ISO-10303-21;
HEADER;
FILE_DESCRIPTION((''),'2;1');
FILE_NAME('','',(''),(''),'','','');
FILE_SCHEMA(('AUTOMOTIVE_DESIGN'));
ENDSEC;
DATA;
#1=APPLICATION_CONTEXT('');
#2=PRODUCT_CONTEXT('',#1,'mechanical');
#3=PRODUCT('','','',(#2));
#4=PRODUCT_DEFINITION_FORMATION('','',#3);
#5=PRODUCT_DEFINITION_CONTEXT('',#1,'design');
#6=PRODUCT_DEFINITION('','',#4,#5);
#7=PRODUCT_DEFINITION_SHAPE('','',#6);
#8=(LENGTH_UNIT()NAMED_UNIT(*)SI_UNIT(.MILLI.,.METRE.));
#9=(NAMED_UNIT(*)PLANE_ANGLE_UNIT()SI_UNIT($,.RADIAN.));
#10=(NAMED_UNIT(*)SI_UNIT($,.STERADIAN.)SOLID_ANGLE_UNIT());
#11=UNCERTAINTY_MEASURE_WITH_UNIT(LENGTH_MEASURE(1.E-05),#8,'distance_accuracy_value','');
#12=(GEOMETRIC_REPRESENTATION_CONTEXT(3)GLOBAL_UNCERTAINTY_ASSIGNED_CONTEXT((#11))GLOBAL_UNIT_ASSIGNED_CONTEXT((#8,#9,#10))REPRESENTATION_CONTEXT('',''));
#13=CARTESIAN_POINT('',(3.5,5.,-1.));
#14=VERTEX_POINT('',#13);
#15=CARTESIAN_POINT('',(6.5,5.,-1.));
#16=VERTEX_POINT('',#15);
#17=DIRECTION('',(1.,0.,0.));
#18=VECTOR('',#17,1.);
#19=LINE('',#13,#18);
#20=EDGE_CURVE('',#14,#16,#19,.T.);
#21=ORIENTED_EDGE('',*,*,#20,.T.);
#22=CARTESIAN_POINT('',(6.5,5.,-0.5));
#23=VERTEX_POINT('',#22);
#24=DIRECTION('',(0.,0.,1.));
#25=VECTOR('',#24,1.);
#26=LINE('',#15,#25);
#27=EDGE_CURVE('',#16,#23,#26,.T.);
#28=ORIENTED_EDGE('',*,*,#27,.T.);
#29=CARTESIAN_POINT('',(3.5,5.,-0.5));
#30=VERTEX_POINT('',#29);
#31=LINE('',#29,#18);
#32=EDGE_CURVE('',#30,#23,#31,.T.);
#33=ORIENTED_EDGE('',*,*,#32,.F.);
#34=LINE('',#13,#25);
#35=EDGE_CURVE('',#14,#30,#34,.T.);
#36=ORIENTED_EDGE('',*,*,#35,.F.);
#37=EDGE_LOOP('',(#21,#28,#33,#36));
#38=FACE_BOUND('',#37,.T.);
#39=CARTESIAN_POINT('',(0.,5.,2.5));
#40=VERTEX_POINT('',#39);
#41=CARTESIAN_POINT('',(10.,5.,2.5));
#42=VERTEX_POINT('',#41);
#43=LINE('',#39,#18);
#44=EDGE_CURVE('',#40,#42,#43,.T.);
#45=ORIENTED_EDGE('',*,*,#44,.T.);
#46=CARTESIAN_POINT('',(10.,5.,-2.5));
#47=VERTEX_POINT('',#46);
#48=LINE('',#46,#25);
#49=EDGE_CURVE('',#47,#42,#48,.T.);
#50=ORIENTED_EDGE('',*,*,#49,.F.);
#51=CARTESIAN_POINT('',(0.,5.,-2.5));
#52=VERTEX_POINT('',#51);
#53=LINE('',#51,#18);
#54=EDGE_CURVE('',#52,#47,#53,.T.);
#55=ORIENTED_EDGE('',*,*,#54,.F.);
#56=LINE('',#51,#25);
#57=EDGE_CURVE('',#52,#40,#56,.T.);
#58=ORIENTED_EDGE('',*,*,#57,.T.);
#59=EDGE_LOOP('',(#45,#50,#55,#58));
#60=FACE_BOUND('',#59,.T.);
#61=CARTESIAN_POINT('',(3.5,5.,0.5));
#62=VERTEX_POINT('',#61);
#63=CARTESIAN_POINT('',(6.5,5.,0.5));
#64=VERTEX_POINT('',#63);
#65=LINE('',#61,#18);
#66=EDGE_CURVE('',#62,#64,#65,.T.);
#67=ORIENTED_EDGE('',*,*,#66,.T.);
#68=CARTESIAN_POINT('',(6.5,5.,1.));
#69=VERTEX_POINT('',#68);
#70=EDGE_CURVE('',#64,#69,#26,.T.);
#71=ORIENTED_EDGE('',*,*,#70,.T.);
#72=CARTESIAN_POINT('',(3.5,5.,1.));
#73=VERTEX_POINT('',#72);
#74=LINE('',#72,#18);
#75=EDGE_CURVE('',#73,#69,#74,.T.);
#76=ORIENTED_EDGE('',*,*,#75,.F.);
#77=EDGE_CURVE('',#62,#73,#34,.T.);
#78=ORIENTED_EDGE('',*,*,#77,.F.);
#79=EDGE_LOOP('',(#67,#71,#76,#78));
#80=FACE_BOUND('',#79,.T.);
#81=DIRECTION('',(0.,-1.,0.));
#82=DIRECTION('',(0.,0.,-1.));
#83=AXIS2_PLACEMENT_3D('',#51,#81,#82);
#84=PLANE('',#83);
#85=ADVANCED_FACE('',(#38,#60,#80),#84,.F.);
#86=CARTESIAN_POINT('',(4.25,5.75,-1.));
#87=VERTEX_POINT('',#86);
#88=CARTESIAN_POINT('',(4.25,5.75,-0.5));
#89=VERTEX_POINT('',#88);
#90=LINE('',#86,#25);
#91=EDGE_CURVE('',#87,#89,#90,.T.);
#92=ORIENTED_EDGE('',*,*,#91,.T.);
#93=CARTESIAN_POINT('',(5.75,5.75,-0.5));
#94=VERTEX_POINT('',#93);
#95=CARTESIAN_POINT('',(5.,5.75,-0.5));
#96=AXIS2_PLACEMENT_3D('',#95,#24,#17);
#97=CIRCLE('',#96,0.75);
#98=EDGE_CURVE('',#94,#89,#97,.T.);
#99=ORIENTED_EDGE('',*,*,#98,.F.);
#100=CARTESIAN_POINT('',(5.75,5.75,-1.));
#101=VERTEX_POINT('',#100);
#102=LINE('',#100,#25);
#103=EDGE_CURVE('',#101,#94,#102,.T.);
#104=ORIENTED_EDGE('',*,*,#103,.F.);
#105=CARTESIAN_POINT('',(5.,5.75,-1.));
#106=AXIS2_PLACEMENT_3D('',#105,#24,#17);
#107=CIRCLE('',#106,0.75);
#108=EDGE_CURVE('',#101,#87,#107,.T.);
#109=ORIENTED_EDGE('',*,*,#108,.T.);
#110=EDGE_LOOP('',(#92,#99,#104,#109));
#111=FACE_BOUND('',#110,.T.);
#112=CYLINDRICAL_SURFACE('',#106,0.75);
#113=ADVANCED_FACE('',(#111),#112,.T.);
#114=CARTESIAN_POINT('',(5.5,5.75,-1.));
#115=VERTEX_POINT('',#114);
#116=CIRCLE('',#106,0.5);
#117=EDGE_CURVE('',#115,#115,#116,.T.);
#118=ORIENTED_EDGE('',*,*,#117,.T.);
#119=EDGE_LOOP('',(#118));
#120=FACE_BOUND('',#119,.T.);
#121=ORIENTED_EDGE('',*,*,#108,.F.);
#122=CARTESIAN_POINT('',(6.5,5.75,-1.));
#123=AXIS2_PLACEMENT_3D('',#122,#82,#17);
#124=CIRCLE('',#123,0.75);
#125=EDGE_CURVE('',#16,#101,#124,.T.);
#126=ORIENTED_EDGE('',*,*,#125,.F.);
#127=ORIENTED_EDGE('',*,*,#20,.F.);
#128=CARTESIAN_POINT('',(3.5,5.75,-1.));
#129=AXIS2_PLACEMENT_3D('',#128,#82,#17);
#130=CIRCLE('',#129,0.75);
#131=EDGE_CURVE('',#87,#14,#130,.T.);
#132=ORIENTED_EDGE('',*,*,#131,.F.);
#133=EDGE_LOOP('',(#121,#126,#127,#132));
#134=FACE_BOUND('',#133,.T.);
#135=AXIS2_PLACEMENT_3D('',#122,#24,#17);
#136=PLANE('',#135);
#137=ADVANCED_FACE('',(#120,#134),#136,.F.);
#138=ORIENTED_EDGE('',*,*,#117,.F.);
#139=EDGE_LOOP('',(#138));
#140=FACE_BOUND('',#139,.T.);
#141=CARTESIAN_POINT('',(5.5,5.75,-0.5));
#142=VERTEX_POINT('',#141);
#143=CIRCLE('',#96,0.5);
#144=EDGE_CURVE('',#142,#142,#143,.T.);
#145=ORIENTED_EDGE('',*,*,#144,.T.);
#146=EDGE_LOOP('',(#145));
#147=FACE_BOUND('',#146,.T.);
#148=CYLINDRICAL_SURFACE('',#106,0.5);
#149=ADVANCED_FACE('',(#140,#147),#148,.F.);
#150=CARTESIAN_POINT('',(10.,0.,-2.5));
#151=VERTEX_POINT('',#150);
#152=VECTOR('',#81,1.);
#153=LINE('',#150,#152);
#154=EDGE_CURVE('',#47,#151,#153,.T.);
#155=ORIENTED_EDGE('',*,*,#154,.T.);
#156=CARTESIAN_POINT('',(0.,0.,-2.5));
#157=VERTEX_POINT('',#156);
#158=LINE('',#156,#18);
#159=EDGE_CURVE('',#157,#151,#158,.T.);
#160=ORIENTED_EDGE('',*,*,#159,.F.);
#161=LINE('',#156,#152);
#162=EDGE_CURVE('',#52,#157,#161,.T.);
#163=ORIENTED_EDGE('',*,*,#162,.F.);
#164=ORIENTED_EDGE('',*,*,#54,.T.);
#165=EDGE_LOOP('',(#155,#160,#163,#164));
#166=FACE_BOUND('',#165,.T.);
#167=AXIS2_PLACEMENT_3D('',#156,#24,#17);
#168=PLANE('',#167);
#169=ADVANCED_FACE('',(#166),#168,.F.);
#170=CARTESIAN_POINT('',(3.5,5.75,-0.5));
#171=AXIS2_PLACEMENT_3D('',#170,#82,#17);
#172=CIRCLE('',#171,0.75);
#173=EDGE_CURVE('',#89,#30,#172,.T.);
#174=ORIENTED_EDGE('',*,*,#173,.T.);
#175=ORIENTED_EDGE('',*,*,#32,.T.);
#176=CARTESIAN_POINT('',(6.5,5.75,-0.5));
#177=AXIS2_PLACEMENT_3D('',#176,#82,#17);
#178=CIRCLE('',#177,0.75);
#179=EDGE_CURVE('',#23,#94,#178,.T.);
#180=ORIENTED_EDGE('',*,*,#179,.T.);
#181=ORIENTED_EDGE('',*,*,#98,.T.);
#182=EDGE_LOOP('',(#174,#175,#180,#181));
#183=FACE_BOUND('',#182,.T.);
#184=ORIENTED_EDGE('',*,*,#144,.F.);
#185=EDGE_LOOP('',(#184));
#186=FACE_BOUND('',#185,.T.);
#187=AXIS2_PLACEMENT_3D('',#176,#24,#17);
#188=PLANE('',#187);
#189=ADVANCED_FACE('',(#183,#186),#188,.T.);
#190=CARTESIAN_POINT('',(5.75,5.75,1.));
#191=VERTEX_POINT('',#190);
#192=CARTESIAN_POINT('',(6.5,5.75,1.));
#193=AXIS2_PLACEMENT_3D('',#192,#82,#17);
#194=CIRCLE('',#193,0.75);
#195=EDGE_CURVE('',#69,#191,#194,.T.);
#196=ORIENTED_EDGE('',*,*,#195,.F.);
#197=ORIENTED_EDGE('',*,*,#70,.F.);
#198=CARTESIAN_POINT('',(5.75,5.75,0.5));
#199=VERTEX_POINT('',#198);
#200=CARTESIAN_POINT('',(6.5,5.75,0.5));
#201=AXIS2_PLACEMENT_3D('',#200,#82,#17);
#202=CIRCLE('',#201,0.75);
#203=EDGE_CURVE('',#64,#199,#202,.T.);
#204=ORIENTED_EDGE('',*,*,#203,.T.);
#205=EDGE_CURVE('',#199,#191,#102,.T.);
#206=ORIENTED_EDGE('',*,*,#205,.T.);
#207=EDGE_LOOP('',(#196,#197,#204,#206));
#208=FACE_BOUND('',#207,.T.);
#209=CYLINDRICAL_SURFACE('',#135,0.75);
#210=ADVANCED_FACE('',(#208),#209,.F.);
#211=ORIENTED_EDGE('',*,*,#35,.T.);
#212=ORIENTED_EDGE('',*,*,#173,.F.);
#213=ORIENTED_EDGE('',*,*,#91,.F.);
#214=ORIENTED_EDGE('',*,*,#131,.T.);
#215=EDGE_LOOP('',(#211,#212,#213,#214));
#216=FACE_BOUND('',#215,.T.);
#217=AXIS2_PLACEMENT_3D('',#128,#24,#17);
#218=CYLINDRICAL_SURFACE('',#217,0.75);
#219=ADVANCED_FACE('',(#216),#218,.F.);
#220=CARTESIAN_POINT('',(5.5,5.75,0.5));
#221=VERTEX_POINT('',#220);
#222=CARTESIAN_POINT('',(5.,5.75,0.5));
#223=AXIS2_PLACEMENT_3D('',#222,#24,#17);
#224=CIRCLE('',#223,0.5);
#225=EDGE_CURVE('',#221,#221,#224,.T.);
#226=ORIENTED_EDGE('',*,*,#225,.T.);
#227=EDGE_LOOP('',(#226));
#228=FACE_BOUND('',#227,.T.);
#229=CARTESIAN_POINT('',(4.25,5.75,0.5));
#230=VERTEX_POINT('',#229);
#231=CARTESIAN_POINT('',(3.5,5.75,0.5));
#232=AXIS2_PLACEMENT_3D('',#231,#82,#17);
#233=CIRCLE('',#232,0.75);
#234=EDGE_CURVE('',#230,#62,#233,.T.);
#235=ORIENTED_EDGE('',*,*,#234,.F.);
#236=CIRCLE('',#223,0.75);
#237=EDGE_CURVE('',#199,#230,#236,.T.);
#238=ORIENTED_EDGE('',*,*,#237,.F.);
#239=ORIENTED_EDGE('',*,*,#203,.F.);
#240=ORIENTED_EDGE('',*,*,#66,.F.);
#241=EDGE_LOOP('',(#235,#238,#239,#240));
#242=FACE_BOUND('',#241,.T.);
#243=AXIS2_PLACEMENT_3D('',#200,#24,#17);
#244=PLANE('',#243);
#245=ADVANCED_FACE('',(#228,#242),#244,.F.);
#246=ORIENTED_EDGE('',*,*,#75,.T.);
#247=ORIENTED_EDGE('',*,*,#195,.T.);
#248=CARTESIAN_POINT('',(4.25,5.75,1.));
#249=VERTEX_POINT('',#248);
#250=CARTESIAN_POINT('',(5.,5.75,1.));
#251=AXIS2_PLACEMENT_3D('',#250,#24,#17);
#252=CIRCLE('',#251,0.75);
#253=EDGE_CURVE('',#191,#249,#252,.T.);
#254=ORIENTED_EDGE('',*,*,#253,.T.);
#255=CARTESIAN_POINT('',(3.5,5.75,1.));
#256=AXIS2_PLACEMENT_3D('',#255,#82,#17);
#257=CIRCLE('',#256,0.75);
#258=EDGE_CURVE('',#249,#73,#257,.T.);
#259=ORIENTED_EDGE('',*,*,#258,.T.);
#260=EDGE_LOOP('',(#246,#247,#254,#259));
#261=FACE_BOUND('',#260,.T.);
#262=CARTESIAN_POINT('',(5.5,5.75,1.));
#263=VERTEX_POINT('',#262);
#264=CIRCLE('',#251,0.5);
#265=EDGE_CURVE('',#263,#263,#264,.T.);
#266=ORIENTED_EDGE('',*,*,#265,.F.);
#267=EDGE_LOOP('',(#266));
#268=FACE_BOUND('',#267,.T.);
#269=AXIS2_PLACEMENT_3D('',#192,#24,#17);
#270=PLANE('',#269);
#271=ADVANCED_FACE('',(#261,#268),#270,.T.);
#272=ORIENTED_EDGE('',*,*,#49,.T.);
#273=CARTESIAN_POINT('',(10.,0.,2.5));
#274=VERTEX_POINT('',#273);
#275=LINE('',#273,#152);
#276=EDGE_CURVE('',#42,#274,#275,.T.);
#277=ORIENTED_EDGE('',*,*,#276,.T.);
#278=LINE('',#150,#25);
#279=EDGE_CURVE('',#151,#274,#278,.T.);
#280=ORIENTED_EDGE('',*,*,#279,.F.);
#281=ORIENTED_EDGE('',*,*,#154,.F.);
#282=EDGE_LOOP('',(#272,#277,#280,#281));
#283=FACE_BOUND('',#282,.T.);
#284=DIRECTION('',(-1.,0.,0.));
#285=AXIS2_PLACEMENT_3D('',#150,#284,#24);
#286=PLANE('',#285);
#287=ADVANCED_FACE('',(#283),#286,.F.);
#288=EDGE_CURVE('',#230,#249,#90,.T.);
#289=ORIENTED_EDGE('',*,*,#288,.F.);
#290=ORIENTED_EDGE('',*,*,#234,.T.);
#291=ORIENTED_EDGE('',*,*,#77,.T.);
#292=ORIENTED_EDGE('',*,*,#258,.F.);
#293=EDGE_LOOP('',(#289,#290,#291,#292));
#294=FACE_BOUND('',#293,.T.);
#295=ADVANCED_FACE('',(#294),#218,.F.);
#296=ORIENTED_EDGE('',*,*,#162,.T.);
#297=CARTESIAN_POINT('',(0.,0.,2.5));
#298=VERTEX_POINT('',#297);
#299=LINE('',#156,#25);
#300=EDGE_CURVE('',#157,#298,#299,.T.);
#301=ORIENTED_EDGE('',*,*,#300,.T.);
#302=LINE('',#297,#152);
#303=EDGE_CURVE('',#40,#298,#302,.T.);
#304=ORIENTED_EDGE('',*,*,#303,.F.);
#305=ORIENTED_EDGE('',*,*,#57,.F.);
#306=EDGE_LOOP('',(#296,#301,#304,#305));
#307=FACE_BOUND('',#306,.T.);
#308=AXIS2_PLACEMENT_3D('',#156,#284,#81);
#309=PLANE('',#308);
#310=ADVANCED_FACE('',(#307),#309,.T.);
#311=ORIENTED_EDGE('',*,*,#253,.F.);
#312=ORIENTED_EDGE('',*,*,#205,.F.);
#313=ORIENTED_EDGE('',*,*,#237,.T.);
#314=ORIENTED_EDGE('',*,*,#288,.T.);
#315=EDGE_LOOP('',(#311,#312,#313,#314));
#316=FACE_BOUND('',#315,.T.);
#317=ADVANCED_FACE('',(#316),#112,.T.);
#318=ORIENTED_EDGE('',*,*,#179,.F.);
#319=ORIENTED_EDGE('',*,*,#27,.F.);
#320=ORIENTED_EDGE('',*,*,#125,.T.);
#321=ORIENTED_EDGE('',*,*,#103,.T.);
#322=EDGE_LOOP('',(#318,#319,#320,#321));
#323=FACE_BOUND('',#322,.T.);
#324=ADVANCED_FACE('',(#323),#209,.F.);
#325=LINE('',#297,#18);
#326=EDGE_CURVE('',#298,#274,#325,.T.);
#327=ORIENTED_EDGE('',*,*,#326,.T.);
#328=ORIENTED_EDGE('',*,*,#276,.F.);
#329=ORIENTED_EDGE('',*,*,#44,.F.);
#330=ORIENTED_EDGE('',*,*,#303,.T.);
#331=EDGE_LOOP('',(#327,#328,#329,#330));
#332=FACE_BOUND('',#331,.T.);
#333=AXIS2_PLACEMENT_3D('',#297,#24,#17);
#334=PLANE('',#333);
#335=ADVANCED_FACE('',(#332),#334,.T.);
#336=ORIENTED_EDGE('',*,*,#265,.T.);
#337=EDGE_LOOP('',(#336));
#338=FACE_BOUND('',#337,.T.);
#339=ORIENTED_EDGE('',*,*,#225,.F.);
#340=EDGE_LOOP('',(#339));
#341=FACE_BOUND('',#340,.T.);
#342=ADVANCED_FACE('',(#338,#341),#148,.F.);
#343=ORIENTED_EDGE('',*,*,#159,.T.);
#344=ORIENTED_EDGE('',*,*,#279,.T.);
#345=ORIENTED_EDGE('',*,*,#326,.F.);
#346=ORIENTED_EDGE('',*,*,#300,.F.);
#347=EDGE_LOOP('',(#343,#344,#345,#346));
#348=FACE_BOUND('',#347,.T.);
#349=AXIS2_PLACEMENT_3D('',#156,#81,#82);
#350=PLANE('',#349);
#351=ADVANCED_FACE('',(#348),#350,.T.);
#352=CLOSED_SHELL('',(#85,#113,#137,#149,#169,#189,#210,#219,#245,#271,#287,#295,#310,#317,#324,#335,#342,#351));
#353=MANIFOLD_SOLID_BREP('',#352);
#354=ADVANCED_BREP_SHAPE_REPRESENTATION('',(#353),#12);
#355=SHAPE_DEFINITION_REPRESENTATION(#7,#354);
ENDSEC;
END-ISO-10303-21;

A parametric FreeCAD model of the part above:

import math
import FreeCAD as App
import Part
import Sketcher


def add_polygon(sketch, points):
    """Adds a closed chain of lines whose ends are joined by coincident constraints."""
    first, n = sketch.GeometryCount, len(points)
    for a, b in zip(points, points[1:] + points[:1]):
        sketch.addGeometry(Part.LineSegment(App.Vector(*a, 0), App.Vector(*b, 0)), False)
    for i in range(n):
        sketch.addConstraint(Sketcher.Constraint("Coincident", first + i, 2, first + (i + 1) % n, 1))

doc = App.newDocument("Part")
body = doc.addObject("PartDesign::Body", "Body")

sketch1 = body.newObject("Sketcher::SketchObject", "Sketch")
sketch1.AttachmentSupport = (doc.getObject("XY_Plane"), [""])
sketch1.MapMode = "FlatFace"
add_polygon(sketch1, [(0, 5), (0, 0), (10, 0), (10, 5)])
sketch1.addConstraint([
    Sketcher.Constraint("Vertical", 0),
    Sketcher.Constraint("Horizontal", 1),
    Sketcher.Constraint("Vertical", 2),
    Sketcher.Constraint("Horizontal", 3),
    Sketcher.Constraint("Coincident", 0, 2, -1, 1),
    Sketcher.Constraint("DistanceX", 1, 1, 1, 2, 10.0),
    Sketcher.Constraint("DistanceY", 0, 2, 0, 1, 5.0),
])
pad1 = body.newObject("PartDesign::Pad", "Pad")
pad1.Profile = sketch1
pad1.Type = "TwoLengths"
pad1.Length = 2.5
pad1.Length2 = 2.5

sketch2 = body.newObject("Sketcher::SketchObject", "Sketch001")
sketch2.AttachmentSupport = (doc.getObject("XY_Plane"), [""])
sketch2.MapMode = "FlatFace"
sketch2.addGeometry([
    Part.LineSegment(App.Vector(3.5, 5, 0), App.Vector(6.5, 5, 0)),
    Part.ArcOfCircle(Part.Circle(App.Vector(6.5, 5.8, 0), App.Vector(0, 0, 1), 0.8), math.radians(180), math.radians(270)),
    Part.ArcOfCircle(Part.Circle(App.Vector(5, 5.8, 0), App.Vector(0, 0, 1), 0.8), math.radians(0), math.radians(180)),
    Part.ArcOfCircle(Part.Circle(App.Vector(3.5, 5.8, 0), App.Vector(0, 0, 1), 0.8), math.radians(-90), math.radians(0)),
    Part.Circle(App.Vector(5, 5.8, 0), App.Vector(0, 0, 1), 0.5),
], False)
sketch2.addConstraint([
    Sketcher.Constraint("Tangent", 0, 2, 1, 2),
    Sketcher.Constraint("Tangent", 1, 1, 2, 1),
    Sketcher.Constraint("Tangent", 2, 2, 3, 2),
    Sketcher.Constraint("Tangent", 3, 1, 0, 1),
    Sketcher.Constraint("Horizontal", 0),
    Sketcher.Constraint("Coincident", 4, 3, 2, 3),
    Sketcher.Constraint("Equal", 1, 2),
    Sketcher.Constraint("Equal", 2, 3),
    Sketcher.Constraint("Horizontal", 1, 3, 2, 3),
    Sketcher.Constraint("Diameter", 4, 1.0),
    Sketcher.Constraint("DistanceX", 0, 1, 0, 2, 3.0),
    Sketcher.Constraint("DistanceX", -1, 1, 2, 3, 5.0),
    Sketcher.Constraint("DistanceY", -1, 1, 0, 2, 5.0),
])
pad2 = body.newObject("PartDesign::Pad", "Pad001")
pad2.Profile = sketch2
pad2.Type = "TwoLengths"
pad2.Length = 1
pad2.Length2 = 1

sketch3 = body.newObject("Sketcher::SketchObject", "Sketch002")
sketch3.AttachmentSupport = (doc.getObject("XY_Plane"), [""])
sketch3.MapMode = "FlatFace"
sketch3.addGeometry([
    Part.LineSegment(App.Vector(3.5, 5, 0), App.Vector(6.5, 5, 0)),
    Part.ArcOfCircle(Part.Circle(App.Vector(6.5, 5.8, 0), App.Vector(0, 0, 1), 0.8), math.radians(180), math.radians(270)),
    Part.ArcOfCircle(Part.Circle(App.Vector(5, 5.8, 0), App.Vector(0, 0, 1), 0.8), math.radians(0), math.radians(180)),
    Part.ArcOfCircle(Part.Circle(App.Vector(3.5, 5.8, 0), App.Vector(0, 0, 1), 0.8), math.radians(-90), math.radians(0)),
    Part.Circle(App.Vector(5, 5.8, 0), App.Vector(0, 0, 1), 0.5),
], False)
sketch3.addConstraint([
    Sketcher.Constraint("Tangent", 0, 2, 1, 2),
    Sketcher.Constraint("Tangent", 1, 1, 2, 1),
    Sketcher.Constraint("Tangent", 2, 2, 3, 2),
    Sketcher.Constraint("Tangent", 3, 1, 0, 1),
    Sketcher.Constraint("Horizontal", 0),
    Sketcher.Constraint("Coincident", 4, 3, 2, 3),
    Sketcher.Constraint("Equal", 1, 2),
    Sketcher.Constraint("Equal", 2, 3),
    Sketcher.Constraint("Horizontal", 1, 3, 2, 3),
    Sketcher.Constraint("Diameter", 4, 1.0),
    Sketcher.Constraint("DistanceX", 0, 1, 0, 2, 3.0),
    Sketcher.Constraint("DistanceX", -1, 1, 2, 3, 5.0),
    Sketcher.Constraint("DistanceY", -1, 1, 0, 2, 5.0),
])
pocket1 = body.newObject("PartDesign::Pocket", "Pocket")
pocket1.Profile = sketch3
pocket1.Type = "TwoLengths"
pocket1.Length = 0.5
pocket1.Length2 = 0.5
pocket1.Reversed = True

doc.recompute()
